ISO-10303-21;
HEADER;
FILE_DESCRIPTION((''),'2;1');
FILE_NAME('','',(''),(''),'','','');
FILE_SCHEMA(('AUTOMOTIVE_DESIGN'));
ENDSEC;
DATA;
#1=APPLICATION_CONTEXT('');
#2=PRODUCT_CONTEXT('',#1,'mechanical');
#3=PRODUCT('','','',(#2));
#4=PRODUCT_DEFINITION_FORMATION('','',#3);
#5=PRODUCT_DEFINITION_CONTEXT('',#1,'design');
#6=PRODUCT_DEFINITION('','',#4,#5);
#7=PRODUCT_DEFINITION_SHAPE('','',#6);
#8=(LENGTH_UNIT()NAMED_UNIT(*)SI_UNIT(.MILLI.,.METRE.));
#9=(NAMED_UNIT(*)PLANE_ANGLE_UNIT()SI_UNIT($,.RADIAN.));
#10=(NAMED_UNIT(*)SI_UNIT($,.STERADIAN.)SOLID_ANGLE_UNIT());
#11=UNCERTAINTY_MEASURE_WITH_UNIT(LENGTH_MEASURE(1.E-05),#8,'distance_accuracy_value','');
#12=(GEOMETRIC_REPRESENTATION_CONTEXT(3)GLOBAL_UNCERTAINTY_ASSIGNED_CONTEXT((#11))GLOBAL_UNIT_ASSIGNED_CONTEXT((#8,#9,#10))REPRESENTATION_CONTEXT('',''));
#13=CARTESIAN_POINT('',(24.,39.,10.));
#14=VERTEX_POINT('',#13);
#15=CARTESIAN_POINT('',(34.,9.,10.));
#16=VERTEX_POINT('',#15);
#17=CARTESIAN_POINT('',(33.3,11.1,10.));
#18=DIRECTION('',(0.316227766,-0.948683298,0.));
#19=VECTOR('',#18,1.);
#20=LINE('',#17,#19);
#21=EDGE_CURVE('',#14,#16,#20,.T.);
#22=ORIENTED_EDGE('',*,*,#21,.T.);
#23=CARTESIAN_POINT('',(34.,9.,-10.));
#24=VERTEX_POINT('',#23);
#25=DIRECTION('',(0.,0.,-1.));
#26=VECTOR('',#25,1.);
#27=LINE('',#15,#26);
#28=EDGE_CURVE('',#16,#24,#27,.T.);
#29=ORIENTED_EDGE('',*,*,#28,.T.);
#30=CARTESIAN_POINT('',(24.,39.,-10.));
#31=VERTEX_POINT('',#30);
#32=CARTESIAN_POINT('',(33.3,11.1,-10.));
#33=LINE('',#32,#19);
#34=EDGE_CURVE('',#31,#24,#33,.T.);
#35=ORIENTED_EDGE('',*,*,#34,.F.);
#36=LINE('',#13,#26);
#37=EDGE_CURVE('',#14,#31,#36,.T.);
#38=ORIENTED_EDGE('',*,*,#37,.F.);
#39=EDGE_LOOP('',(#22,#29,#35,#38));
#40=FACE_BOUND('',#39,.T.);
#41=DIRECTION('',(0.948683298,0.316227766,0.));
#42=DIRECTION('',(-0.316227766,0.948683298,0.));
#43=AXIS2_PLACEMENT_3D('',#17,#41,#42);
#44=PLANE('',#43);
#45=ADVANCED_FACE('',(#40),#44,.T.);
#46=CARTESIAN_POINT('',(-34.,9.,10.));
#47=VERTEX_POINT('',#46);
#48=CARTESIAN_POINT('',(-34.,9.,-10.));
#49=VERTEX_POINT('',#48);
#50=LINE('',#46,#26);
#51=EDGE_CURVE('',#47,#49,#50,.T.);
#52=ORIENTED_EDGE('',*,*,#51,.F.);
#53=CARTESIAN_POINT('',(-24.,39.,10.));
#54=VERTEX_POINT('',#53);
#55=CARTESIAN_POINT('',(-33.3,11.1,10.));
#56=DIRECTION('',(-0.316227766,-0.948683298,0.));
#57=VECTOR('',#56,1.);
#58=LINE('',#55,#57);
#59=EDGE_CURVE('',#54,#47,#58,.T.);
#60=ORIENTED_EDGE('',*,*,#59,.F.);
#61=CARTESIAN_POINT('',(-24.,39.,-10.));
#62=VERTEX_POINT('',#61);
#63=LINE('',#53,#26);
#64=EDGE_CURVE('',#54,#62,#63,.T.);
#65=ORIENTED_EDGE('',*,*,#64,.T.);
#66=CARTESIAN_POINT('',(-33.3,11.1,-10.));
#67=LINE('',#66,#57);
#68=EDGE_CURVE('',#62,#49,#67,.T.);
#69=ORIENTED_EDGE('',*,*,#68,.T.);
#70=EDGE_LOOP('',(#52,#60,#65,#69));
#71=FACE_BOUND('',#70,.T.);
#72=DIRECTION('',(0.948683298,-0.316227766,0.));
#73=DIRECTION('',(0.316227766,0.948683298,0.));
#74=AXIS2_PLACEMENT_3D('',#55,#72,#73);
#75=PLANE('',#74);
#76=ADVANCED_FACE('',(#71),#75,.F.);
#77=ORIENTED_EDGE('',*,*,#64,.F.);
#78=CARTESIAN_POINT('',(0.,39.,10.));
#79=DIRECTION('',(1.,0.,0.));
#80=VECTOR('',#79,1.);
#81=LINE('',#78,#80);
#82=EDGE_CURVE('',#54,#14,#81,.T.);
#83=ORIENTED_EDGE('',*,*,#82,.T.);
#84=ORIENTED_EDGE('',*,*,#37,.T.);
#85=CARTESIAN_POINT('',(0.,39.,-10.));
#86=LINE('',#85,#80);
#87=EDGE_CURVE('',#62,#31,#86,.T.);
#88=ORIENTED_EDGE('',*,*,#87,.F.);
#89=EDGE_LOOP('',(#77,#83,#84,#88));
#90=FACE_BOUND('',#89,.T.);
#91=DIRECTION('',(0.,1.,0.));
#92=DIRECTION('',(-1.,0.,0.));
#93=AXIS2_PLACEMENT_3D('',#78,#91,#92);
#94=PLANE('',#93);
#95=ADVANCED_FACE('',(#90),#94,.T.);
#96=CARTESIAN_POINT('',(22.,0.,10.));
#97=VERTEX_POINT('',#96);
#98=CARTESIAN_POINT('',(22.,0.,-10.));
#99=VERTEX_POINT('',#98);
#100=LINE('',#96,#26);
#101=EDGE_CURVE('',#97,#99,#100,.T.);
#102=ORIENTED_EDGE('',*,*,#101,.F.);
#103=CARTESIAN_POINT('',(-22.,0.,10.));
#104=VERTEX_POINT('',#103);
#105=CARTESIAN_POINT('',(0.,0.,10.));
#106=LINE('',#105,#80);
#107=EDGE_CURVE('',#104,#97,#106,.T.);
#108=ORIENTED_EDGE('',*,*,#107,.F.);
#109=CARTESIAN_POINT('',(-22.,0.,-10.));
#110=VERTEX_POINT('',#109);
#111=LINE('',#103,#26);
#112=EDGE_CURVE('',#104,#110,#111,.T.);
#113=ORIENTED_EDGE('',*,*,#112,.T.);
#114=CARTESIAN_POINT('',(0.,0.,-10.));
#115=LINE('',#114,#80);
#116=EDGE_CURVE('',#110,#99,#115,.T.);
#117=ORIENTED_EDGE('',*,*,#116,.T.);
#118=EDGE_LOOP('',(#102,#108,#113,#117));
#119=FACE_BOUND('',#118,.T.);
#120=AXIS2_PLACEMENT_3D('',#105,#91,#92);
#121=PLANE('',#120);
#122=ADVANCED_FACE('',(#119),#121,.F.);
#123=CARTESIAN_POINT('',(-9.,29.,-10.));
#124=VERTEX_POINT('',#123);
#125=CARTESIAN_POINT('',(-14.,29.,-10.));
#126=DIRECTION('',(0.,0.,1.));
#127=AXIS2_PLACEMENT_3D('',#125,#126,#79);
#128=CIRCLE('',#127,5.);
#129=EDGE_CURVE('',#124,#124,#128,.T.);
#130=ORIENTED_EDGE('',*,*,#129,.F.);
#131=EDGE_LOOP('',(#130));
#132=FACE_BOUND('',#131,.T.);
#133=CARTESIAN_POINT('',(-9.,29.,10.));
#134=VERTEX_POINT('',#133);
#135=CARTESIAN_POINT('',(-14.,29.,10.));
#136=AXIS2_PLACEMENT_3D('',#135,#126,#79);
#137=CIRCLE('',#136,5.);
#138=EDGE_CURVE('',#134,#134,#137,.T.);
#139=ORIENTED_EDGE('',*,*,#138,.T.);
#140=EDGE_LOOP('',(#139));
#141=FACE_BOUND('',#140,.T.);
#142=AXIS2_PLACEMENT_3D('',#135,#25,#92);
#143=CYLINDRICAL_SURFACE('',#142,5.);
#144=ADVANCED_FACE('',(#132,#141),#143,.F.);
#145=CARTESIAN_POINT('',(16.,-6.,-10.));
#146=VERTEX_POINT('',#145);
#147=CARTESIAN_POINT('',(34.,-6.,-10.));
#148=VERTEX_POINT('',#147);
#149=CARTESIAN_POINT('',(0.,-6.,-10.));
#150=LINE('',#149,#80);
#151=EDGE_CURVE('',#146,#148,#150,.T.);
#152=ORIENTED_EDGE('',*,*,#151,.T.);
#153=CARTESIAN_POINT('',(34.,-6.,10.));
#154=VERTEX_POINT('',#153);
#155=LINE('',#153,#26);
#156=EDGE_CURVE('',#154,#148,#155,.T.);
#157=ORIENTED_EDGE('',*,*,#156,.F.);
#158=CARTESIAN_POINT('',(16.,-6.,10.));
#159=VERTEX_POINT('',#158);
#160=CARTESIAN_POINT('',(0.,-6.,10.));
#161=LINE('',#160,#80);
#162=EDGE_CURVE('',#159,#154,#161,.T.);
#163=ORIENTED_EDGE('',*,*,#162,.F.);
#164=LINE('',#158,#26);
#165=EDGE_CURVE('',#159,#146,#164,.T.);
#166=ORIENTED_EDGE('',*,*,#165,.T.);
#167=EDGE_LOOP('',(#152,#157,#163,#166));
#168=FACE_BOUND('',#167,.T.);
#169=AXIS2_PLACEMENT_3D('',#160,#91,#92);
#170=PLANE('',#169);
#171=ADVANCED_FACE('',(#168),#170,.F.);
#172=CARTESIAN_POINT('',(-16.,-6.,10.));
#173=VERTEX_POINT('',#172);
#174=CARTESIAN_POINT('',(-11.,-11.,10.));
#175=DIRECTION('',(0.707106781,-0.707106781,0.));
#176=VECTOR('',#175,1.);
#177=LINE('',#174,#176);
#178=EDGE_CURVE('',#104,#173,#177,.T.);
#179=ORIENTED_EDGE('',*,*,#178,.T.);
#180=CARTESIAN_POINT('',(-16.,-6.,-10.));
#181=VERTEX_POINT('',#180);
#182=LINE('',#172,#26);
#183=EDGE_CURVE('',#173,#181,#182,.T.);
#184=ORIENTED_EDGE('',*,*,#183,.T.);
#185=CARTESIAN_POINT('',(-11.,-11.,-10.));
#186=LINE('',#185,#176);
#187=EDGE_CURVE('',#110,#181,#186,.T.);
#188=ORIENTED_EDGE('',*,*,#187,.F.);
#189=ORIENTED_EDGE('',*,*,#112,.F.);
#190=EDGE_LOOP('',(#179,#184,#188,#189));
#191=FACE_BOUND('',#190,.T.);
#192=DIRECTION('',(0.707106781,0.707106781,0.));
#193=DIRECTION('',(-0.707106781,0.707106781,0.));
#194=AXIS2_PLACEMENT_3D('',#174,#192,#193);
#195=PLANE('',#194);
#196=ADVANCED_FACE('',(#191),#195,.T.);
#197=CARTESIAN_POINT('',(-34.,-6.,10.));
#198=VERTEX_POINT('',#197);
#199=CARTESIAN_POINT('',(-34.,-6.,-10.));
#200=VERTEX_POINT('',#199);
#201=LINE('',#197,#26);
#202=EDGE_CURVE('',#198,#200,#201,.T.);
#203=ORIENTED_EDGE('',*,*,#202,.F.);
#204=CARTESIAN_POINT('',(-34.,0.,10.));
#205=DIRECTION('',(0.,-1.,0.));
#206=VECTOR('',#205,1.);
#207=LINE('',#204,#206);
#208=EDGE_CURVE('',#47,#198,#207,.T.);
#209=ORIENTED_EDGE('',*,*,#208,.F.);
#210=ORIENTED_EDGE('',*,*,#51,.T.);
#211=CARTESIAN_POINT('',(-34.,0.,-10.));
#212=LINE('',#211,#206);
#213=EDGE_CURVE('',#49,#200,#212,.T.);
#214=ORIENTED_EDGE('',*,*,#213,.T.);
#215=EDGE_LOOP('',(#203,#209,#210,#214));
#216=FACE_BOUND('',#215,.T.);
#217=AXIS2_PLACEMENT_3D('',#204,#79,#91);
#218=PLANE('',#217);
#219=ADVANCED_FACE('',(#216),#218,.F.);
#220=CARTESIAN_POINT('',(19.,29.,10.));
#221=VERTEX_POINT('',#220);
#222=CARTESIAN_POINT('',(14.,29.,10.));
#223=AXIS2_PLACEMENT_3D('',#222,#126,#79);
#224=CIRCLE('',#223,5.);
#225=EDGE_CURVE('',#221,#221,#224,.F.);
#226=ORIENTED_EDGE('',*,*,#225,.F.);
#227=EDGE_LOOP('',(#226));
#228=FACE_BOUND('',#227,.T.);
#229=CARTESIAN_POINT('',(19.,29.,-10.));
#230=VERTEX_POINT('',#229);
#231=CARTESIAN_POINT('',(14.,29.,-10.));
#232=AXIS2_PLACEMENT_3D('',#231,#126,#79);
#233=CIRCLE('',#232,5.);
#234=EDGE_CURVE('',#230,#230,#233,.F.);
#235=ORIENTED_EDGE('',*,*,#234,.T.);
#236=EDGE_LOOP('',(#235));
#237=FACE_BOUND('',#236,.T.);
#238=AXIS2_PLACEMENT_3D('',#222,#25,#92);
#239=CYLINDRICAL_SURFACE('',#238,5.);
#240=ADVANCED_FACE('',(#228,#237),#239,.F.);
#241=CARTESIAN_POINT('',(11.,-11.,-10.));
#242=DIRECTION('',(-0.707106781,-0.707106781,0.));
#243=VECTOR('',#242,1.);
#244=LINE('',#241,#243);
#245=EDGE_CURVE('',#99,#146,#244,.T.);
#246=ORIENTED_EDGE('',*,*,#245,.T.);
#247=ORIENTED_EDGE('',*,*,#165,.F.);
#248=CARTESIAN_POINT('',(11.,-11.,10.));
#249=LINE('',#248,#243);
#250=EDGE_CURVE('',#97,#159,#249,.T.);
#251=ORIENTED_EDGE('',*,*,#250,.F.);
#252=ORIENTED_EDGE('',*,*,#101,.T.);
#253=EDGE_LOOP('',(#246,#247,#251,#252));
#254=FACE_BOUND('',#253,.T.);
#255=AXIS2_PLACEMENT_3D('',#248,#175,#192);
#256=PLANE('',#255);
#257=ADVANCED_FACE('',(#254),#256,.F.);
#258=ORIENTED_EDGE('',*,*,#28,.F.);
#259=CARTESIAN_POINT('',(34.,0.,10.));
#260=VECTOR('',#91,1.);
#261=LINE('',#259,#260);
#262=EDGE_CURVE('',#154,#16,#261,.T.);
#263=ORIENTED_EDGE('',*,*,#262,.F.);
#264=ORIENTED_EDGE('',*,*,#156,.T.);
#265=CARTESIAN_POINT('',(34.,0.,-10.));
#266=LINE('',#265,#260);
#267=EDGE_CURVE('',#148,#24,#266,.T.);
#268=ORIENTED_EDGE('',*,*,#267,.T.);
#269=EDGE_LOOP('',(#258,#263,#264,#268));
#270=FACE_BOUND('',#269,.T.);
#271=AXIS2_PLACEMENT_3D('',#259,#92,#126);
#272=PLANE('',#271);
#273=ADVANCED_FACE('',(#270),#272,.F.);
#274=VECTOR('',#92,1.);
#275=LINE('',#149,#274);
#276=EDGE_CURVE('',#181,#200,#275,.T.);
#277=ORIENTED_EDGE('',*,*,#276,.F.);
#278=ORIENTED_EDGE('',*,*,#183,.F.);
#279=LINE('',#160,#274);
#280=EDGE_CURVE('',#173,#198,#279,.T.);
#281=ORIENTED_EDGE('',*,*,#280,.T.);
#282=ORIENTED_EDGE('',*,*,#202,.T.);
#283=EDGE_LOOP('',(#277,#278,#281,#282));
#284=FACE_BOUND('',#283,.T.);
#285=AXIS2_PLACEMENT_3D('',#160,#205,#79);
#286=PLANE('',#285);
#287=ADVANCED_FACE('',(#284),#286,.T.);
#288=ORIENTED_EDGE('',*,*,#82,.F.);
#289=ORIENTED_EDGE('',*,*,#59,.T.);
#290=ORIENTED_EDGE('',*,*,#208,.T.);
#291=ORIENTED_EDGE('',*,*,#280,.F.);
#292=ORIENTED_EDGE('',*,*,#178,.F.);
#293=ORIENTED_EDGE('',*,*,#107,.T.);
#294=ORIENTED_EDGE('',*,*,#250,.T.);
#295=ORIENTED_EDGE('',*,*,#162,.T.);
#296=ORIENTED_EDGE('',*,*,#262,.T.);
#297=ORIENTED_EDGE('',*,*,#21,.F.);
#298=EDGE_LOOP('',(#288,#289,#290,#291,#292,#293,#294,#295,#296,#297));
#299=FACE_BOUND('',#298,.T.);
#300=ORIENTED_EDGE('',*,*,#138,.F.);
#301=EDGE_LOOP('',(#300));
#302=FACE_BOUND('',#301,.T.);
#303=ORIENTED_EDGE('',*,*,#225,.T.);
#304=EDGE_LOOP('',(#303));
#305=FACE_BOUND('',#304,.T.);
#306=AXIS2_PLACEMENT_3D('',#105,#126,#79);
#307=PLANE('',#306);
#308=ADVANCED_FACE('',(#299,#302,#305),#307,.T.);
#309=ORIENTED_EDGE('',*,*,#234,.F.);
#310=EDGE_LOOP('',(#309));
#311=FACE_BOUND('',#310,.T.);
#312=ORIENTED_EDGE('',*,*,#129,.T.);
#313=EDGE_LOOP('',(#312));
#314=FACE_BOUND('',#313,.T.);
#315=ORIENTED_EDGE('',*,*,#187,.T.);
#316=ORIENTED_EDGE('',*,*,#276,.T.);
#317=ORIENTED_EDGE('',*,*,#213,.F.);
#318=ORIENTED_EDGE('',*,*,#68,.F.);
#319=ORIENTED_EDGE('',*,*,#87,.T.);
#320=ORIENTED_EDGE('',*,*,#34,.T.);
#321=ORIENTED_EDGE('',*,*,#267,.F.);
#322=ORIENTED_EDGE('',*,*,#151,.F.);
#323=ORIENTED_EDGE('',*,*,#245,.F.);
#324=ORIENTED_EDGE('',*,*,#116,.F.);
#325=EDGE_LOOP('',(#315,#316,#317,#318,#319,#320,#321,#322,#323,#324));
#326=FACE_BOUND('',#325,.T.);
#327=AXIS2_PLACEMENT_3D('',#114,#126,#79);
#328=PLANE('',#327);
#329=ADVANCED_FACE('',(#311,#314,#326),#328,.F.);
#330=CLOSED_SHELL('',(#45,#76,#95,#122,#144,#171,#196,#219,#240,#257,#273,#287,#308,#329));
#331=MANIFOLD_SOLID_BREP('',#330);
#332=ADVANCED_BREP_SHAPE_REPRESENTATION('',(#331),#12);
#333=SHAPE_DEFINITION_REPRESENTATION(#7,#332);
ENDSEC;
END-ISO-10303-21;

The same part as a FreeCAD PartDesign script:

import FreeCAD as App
import Part
import Sketcher

V = App.Vector


def add_polygon(sketch, points):
    """Adds a closed chain of lines whose ends are joined by coincident constraints."""
    first, n = sketch.GeometryCount, len(points)
    for a, b in zip(points, points[1:] + points[:1]):
        sketch.addGeometry(Part.LineSegment(App.Vector(*a, 0), App.Vector(*b, 0)), False)
    for i in range(n):
        sketch.addConstraint(Sketcher.Constraint("Coincident", first + i, 2, first + (i + 1) % n, 1))

doc = App.newDocument("Part")
body = doc.addObject("PartDesign::Body", "Body")

# Sketch on XY plane
sketch1 = doc.addObject("Sketcher::SketchObject", "Sketch")
body.addObject(sketch1)
sketch1.AttachmentSupport = (doc.XY_Plane, [""])
sketch1.MapMode = "FlatFace"
add_polygon(sketch1, [(24, 39), (-24, 39), (-34, 9), (-34, -6), (-16, -6), (-22, 0), (22, 0), (16, -6), (34, -6), (34, 9)])  # lines 0-9
sketch1.addGeometry(Part.Circle(V(14, 29, 0), V(0, 0, 1), 5), False)  # 10
sketch1.addGeometry(Part.Circle(V(-14, 29, 0), V(0, 0, 1), 5), False)  # 11
sketch1.addConstraint([
    Sketcher.Constraint("Horizontal", 0),
    Sketcher.Constraint("Vertical", 2),
    Sketcher.Constraint("Horizontal", 3),
    Sketcher.Constraint("Horizontal", 5),
    Sketcher.Constraint("Horizontal", 7),
    Sketcher.Constraint("Vertical", 8),
    Sketcher.Constraint("Equal", 10, 11),
    Sketcher.Constraint("Symmetric", 4, 2, 5, 2, -1, 1),
    Sketcher.Constraint("Symmetric", 10, 3, 11, 3, -2),
    Sketcher.Constraint("Symmetric", 3, 2, 6, 2, -2),
    Sketcher.Constraint("Symmetric", 1, 2, 8, 2, -2),
    Sketcher.Constraint("Perpendicular", 4, 6),
    Sketcher.Constraint("Equal", 1, 9),
    Sketcher.Constraint("Diameter", 10, 10.0),
    Sketcher.Constraint("DistanceX", 0, 2, 0, 1, 48.0),
    Sketcher.Constraint("DistanceX", 3, 1, 3, 2, 18.0),
    Sketcher.Constraint("DistanceX", 5, 1, 5, 2, 44.0),
    Sketcher.Constraint("DistanceY", 2, 2, 2, 1, 15.0),
    Sketcher.Constraint("DistanceX", -1, 1, 10, 3, 14.0),
    Sketcher.Constraint("DistanceY", -1, 1, 10, 3, 29.0),
    Sketcher.Constraint("DistanceY", -1, 1, 0, 2, 39.0),
    Sketcher.Constraint("DistanceX", 1, 2, -1, 1, 34.0),
])
pad1 = doc.addObject("PartDesign::Pad", "Pad")
body.addObject(pad1)
pad1.Profile = sketch1
pad1.Length = 20
pad1.Midplane = True

doc.recompute()
